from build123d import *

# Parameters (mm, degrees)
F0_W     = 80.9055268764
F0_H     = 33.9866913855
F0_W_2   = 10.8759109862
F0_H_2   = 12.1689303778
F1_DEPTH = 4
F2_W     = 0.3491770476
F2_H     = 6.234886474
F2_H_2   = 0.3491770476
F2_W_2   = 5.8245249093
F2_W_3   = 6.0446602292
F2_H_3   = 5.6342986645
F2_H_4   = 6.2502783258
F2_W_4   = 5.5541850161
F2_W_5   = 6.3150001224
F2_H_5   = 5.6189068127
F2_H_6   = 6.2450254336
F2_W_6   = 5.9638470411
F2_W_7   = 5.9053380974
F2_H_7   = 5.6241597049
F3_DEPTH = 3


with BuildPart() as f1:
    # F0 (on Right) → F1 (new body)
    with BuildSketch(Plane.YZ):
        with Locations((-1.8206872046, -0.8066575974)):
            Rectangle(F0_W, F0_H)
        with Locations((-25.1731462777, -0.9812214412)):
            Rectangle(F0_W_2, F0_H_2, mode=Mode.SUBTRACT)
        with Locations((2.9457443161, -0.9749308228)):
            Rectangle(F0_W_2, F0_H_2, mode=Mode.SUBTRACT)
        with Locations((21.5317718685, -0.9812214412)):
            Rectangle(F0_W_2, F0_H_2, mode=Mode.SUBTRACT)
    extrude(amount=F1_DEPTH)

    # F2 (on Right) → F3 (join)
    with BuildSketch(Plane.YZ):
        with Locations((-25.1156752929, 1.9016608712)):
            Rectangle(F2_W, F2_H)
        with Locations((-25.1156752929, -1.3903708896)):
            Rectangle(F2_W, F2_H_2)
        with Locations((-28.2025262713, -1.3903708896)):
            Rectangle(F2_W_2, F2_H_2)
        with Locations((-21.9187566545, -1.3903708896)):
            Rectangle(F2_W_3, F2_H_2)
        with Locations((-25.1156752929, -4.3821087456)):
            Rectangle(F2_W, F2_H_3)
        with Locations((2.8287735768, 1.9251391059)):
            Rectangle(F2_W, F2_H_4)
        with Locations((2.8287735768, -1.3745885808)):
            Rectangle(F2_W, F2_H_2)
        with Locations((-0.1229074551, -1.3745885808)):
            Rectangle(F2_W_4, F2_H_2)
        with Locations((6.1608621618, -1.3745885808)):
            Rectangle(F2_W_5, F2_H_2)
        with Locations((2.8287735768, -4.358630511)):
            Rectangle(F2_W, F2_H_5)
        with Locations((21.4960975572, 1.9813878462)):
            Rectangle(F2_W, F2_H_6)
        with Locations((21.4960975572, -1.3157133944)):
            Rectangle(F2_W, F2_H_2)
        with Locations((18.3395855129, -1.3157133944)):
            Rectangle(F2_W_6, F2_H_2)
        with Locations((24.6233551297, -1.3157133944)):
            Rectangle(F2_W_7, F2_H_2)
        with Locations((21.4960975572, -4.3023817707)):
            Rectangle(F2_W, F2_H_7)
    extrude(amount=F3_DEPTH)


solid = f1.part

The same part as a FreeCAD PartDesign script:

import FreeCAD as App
import Part
import Sketcher
from FreeCAD import Vector


def add_polygon(sketch, points):
    """Adds a closed chain of lines whose ends are joined by coincident constraints."""
    first, n = sketch.GeometryCount, len(points)
    for a, b in zip(points, points[1:] + points[:1]):
        sketch.addGeometry(Part.LineSegment(App.Vector(*a, 0), App.Vector(*b, 0)), False)
    for i in range(n):
        sketch.addConstraint(Sketcher.Constraint("Coincident", first + i, 2, first + (i + 1) % n, 1))

doc = App.newDocument("Part")
body = doc.addObject("PartDesign::Body", "Body")

# Sketch on YZ plane
sketch1 = body.newObject("Sketcher::SketchObject", "Sketch")
sketch1.AttachmentSupport = (doc.getObject("YZ_Plane"), [""])
sketch1.MapMode = "FlatFace"
add_polygon(sketch1, [(-42, 16), (-42, -18), (39, -18), (39, 16)])  # lines 0-3
add_polygon(sketch1, [(-20, -7), (-31, -7), (-31, 5), (-20, 5)])  # lines 4-7
add_polygon(sketch1, [(27, -7), (16, -7), (16, 5), (27, 5)])  # lines 8-11
add_polygon(sketch1, [(8, -7), (-2, -7), (-2, 5), (8, 5)])  # lines 12-15
sketch1.addConstraint(Sketcher.Constraint("Vertical", 0))
sketch1.addConstraint(Sketcher.Constraint("Horizontal", 1))
sketch1.addConstraint(Sketcher.Constraint("Vertical", 2))
sketch1.addConstraint(Sketcher.Constraint("Horizontal", 3))
sketch1.addConstraint(Sketcher.Constraint("Horizontal", 4))
sketch1.addConstraint(Sketcher.Constraint("Vertical", 5))
sketch1.addConstraint(Sketcher.Constraint("Horizontal", 6))
sketch1.addConstraint(Sketcher.Constraint("Vertical", 7))
sketch1.addConstraint(Sketcher.Constraint("Horizontal", 8))
sketch1.addConstraint(Sketcher.Constraint("Vertical", 9))
sketch1.addConstraint(Sketcher.Constraint("Horizontal", 10))
sketch1.addConstraint(Sketcher.Constraint("Vertical", 11))
sketch1.addConstraint(Sketcher.Constraint("Horizontal", 12))
sketch1.addConstraint(Sketcher.Constraint("Vertical", 13))
sketch1.addConstraint(Sketcher.Constraint("Horizontal", 14))
sketch1.addConstraint(Sketcher.Constraint("Vertical", 15))
sketch1.addConstraint(Sketcher.Constraint("Horizontal", 7, 2, 8, 2))
sketch1.addConstraint(Sketcher.Constraint("Horizontal", 6, 2, 9, 2))
sketch1.addConstraint(Sketcher.Constraint("Equal", 6, 8))
sketch1.addConstraint(Sketcher.Constraint("Equal", 10, 12))
sketch1.addConstraint(Sketcher.Constraint("Equal", 11, 13))
sketch1.addConstraint(Sketcher.Constraint("DistanceX", 4, 2, 4, 1, 10.875911))
sketch1.addConstraint(Sketcher.Constraint("DistanceY", 0, 2, 0, 1, 33.986691))
sketch1.addConstraint(Sketcher.Constraint("DistanceY", 5, 1, 5, 2, 12.16893))
sketch1.addConstraint(Sketcher.Constraint("DistanceX", 4, 2, -1, 1, 30.611102))
sketch1.addConstraint(Sketcher.Constraint("DistanceX", -1, 1, 14, 2, 8.3837))
sketch1.addConstraint(Sketcher.Constraint("DistanceX", 1, 1, 1, 2, 80.905527))
sketch1.addConstraint(Sketcher.Constraint("DistanceX", 0, 2, -1, 1, 42.273451))
sketch1.addConstraint(Sketcher.Constraint("DistanceY", -1, 1, 2, 2, 16.186688))
sketch1.addConstraint(Sketcher.Constraint("DistanceX", 8, 2, 1, 2, 22.53826))
sketch1.addConstraint(Sketcher.Constraint("DistanceY", 7, 2, 12, 2, 0.006291))
sketch1.addConstraint(Sketcher.Constraint("DistanceY", 4, 2, -1, 1, 7.065687))
pad1 = body.newObject("PartDesign::Pad", "Pad")
pad1.Profile = sketch1
pad1.Length = 4

# Sketch on YZ plane
sketch2 = body.newObject("Sketcher::SketchObject", "Sketch001")
sketch2.AttachmentSupport = (doc.getObject("YZ_Plane"), [""])
sketch2.MapMode = "FlatFace"
add_polygon(sketch2, [(-25.29, 5.02), (-25.29, -1.22), (-31.11, -1.22), (-31.11, -1.56), (-25.29, -1.56), (-25.29, -7.2), (-24.94, -7.2), (-24.94, -1.56), (-18.9, -1.56), (-18.9, -1.22), (-24.94, -1.22), (-24.94, 5.02)])  # lines 0-11
add_polygon(sketch2, [(2.65, 5.05), (2.65, -1.2), (-2.9, -1.2), (-2.9, -1.55), (2.65, -1.55), (2.65, -7.17), (3, -7.17), (3, -1.55), (9.32, -1.55), (9.32, -1.2), (3, -1.2), (3, 5.05)])  # lines 12-23
add_polygon(sketch2, [(21.32, 5.1), (21.32, -1.14), (15.36, -1.14), (15.36, -1.49), (21.32, -1.49), (21.32, -7.11), (21.67, -7.11), (21.67, -1.49), (27.58, -1.49), (27.58, -1.14), (21.67, -1.14), (21.67, 5.1)])  # lines 24-35
sketch2.addConstraint(Sketcher.Constraint("Vertical", 0))
sketch2.addConstraint(Sketcher.Constraint("Horizontal", 1))
sketch2.addConstraint(Sketcher.Constraint("Vertical", 2))
sketch2.addConstraint(Sketcher.Constraint("Horizontal", 3))
sketch2.addConstraint(Sketcher.Constraint("Vertical", 4))
sketch2.addConstraint(Sketcher.Constraint("Horizontal", 5))
sketch2.addConstraint(Sketcher.Constraint("Vertical", 6))
sketch2.addConstraint(Sketcher.Constraint("Horizontal", 7))
sketch2.addConstraint(Sketcher.Constraint("Vertical", 8))
sketch2.addConstraint(Sketcher.Constraint("Horizontal", 9))
sketch2.addConstraint(Sketcher.Constraint("Vertical", 10))
sketch2.addConstraint(Sketcher.Constraint("Horizontal", 11))
sketch2.addConstraint(Sketcher.Constraint("Vertical", 12))
sketch2.addConstraint(Sketcher.Constraint("Horizontal", 13))
sketch2.addConstraint(Sketcher.Constraint("Vertical", 14))
sketch2.addConstraint(Sketcher.Constraint("Horizontal", 15))
sketch2.addConstraint(Sketcher.Constraint("Vertical", 16))
sketch2.addConstraint(Sketcher.Constraint("Horizontal", 17))
sketch2.addConstraint(Sketcher.Constraint("Vertical", 18))
sketch2.addConstraint(Sketcher.Constraint("Horizontal", 19))
sketch2.addConstraint(Sketcher.Constraint("Vertical", 20))
sketch2.addConstraint(Sketcher.Constraint("Horizontal", 21))
sketch2.addConstraint(Sketcher.Constraint("Vertical", 22))
sketch2.addConstraint(Sketcher.Constraint("Horizontal", 23))
sketch2.addConstraint(Sketcher.Constraint("Vertical", 24))
sketch2.addConstraint(Sketcher.Constraint("Horizontal", 25))
sketch2.addConstraint(Sketcher.Constraint("Vertical", 26))
sketch2.addConstraint(Sketcher.Constraint("Horizontal", 27))
sketch2.addConstraint(Sketcher.Constraint("Vertical", 28))
sketch2.addConstraint(Sketcher.Constraint("Horizontal", 29))
sketch2.addConstraint(Sketcher.Constraint("Vertical", 30))
sketch2.addConstraint(Sketcher.Constraint("Horizontal", 31))
sketch2.addConstraint(Sketcher.Constraint("Vertical", 32))
sketch2.addConstraint(Sketcher.Constraint("Horizontal", 33))
sketch2.addConstraint(Sketcher.Constraint("Vertical", 34))
sketch2.addConstraint(Sketcher.Constraint("Horizontal", 35))
sketch2.addConstraint(Sketcher.Constraint("Horizontal", 3, 2, 6, 2))
sketch2.addConstraint(Sketcher.Constraint("Horizontal", 1, 2, 8, 2))
sketch2.addConstraint(Sketcher.Constraint("Horizontal", 15, 2, 18, 2))
sketch2.addConstraint(Sketcher.Constraint("Horizontal", 13, 2, 20, 2))
sketch2.addConstraint(Sketcher.Constraint("Horizontal", 27, 2, 30, 2))
sketch2.addConstraint(Sketcher.Constraint("Horizontal", 25, 2, 32, 2))
sketch2.addConstraint(Sketcher.Constraint("Vertical", 0, 2, 3, 2))
sketch2.addConstraint(Sketcher.Constraint("Vertical", 6, 2, 9, 2))
sketch2.addConstraint(Sketcher.Constraint("Vertical", 12, 2, 15, 2))
sketch2.addConstraint(Sketcher.Constraint("Vertical", 18, 2, 21, 2))
sketch2.addConstraint(Sketcher.Constraint("Vertical", 24, 2, 27, 2))
sketch2.addConstraint(Sketcher.Constraint("Vertical", 30, 2, 33, 2))
sketch2.addConstraint(Sketcher.Constraint("Equal", 11, 17))
sketch2.addConstraint(Sketcher.Constraint("Equal", 23, 29))
sketch2.addConstraint(Sketcher.Constraint("Equal", 35, 2))
sketch2.addConstraint(Sketcher.Constraint("Equal", 8, 14))
sketch2.addConstraint(Sketcher.Constraint("Equal", 20, 26))
sketch2.addConstraint(Sketcher.Constraint("DistanceY", 12, 2, -1, 1, 1.2))
sketch2.addConstraint(Sketcher.Constraint("DistanceX", 13, 2, -1, 1, 2.9))
sketch2.addConstraint(Sketcher.Constraint("DistanceX", 19, 1, 19, 2, 6.315))
sketch2.addConstraint(Sketcher.Constraint("DistanceY", 4, 2, 4, 1, 5.634299))
sketch2.addConstraint(Sketcher.Constraint("DistanceX", 7, 1, 7, 2, 6.04466))
sketch2.addConstraint(Sketcher.Constraint("DistanceX", 31, 1, 31, 2, 5.905338))
sketch2.addConstraint(Sketcher.Constraint("DistanceY", 12, 2, 12, 1, 6.250278))
sketch2.addConstraint(Sketcher.Constraint("DistanceY", 28, 2, 28, 1, 5.62416))
sketch2.addConstraint(Sketcher.Constraint("DistanceY", 26, 2, -1, 1, 1.490302))
sketch2.addConstraint(Sketcher.Constraint("DistanceY", -1, 1, 34, 2, 5.103901))
sketch2.addConstraint(Sketcher.Constraint("DistanceX", 2, 2, 5, 2, 6.173702))
sketch2.addConstraint(Sketcher.Constraint("DistanceX", 20, 2, 25, 2, 6.0393))
sketch2.addConstraint(Sketcher.Constraint("DistanceX", 1, 2, 1, 1, 5.824525))
sketch2.addConstraint(Sketcher.Constraint("DistanceX", 13, 2, 13, 1, 5.554185))
sketch2.addConstraint(Sketcher.Constraint("DistanceX", 25, 2, 25, 1, 5.963847))
sketch2.addConstraint(Sketcher.Constraint("DistanceY", 0, 2, 0, 1, 6.234886))
sketch2.addConstraint(Sketcher.Constraint("DistanceY", 16, 2, 16, 1, 5.618907))
sketch2.addConstraint(Sketcher.Constraint("DistanceX", 1, 2, -1, 1, 31.114789))
sketch2.addConstraint(Sketcher.Constraint("DistanceY", 2, 2, -1, 1, 1.564959))
pad2 = body.newObject("PartDesign::Pad", "Pad001")
pad2.Profile = sketch2
pad2.Length = 3

doc.recompute()
